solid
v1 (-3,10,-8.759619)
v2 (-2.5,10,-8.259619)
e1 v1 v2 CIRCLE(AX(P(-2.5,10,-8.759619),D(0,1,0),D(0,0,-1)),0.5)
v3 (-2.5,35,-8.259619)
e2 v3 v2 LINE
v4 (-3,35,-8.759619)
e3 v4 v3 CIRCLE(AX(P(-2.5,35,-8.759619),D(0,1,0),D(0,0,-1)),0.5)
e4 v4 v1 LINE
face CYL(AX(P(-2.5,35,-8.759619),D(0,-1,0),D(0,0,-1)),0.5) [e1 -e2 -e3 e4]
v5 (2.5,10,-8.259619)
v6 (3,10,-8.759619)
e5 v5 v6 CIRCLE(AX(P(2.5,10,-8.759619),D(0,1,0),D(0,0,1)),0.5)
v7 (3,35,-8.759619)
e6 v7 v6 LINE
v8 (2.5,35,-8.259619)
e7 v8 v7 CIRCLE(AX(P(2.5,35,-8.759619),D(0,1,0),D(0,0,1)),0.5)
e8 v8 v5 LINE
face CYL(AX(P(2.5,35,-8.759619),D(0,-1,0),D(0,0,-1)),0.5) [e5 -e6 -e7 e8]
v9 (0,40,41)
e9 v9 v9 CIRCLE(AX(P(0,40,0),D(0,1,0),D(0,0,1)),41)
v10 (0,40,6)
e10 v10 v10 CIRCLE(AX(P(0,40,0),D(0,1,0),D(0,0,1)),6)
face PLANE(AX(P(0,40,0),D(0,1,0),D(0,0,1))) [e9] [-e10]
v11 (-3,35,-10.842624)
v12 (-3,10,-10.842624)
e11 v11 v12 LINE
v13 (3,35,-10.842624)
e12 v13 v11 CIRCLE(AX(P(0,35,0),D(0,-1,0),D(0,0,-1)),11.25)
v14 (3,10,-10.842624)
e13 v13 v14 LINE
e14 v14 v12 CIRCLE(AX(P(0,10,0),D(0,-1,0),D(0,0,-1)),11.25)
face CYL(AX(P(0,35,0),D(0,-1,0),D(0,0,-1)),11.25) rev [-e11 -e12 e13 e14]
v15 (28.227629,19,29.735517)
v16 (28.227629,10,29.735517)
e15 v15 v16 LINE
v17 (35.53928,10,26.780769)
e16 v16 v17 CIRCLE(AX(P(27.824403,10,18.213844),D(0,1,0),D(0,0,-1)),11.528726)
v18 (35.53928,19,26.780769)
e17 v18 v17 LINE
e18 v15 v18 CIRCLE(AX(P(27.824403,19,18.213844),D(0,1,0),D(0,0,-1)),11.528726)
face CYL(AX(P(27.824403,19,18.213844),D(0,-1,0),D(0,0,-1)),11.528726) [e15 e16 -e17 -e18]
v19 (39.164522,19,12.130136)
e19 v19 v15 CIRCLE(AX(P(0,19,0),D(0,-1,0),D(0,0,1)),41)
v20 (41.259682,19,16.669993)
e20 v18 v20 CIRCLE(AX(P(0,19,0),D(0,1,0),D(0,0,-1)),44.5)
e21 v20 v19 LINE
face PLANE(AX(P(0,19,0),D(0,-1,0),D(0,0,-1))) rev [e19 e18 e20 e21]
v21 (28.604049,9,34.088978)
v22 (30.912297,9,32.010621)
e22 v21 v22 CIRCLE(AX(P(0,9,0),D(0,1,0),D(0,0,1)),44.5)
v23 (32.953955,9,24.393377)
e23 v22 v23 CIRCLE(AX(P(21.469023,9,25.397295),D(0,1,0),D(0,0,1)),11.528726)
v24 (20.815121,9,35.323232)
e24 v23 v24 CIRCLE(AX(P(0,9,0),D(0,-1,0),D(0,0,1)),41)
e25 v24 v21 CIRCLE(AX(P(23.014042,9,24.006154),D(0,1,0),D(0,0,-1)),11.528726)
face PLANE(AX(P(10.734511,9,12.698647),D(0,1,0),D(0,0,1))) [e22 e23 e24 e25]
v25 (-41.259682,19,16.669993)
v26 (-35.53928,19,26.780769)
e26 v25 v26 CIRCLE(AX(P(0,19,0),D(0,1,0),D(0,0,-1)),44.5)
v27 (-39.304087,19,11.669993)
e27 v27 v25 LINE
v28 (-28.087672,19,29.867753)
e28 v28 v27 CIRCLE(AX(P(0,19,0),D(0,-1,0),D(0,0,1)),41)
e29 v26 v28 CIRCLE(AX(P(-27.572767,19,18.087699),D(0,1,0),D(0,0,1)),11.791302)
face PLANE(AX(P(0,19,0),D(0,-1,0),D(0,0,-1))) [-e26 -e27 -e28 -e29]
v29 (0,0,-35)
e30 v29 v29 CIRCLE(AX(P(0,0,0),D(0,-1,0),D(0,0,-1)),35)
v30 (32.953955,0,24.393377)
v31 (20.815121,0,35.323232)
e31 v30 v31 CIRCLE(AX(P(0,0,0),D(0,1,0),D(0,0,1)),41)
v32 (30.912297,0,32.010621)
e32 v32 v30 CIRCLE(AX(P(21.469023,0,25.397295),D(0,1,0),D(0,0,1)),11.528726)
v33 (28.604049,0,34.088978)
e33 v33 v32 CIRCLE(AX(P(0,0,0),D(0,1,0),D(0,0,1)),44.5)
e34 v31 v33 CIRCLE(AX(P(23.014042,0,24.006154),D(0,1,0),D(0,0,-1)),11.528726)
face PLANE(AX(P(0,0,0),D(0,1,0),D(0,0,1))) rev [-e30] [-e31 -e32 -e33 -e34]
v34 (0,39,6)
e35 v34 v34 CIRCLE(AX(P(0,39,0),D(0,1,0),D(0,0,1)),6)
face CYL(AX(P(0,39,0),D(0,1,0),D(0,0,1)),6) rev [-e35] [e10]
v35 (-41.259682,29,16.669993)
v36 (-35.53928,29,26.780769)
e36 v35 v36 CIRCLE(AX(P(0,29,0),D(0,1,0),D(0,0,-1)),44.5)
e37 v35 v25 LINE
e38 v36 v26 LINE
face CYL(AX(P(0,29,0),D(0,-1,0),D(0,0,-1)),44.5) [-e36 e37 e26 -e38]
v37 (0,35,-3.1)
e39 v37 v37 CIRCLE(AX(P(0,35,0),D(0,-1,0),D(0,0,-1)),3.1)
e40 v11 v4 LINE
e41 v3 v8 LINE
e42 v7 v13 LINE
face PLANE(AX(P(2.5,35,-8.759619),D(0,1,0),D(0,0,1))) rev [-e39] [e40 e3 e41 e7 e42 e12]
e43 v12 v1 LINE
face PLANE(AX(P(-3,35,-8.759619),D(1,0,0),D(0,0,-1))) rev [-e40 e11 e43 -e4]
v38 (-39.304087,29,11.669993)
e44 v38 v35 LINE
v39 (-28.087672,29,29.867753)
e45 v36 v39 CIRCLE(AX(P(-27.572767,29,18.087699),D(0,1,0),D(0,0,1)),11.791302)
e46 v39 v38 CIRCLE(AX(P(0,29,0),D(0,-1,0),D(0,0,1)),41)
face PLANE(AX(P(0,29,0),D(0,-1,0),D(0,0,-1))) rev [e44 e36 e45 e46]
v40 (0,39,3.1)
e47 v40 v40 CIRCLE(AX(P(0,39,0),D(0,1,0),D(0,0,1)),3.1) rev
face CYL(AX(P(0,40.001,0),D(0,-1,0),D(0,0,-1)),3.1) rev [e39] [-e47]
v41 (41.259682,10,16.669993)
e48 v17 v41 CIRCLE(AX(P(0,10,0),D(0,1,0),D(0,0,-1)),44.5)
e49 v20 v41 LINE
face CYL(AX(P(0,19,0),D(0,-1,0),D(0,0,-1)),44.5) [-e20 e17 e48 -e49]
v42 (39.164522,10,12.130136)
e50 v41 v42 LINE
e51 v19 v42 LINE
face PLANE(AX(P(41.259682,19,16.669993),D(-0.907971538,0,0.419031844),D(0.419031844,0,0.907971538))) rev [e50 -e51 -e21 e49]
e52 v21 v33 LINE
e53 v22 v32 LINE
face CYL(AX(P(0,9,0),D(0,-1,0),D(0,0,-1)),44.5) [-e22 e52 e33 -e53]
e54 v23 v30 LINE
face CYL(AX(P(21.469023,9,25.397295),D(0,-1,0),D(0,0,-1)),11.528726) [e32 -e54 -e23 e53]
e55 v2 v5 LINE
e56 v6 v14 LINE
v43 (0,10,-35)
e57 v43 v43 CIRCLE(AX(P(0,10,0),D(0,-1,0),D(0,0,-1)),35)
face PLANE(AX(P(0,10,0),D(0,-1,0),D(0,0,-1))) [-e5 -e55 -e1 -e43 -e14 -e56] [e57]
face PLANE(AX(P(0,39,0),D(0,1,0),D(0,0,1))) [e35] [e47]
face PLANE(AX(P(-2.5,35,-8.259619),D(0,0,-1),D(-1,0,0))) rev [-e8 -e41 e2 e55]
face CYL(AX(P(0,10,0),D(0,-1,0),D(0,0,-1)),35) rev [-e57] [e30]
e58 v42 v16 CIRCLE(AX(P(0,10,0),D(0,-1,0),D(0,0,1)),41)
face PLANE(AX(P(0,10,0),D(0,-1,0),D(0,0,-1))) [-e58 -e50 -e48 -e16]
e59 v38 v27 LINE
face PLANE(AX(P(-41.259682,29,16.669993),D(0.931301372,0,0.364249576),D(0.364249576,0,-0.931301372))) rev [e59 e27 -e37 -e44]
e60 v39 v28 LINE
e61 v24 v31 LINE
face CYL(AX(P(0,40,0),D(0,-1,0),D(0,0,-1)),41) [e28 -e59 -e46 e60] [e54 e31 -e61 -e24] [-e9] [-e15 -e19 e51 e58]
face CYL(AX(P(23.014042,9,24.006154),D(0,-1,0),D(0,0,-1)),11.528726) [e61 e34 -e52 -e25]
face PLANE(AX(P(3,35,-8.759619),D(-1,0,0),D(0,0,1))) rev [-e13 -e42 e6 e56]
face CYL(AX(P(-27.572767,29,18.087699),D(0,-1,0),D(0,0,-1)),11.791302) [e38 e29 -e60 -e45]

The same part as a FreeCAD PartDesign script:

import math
import FreeCAD as App
import Part
import Sketcher

doc = App.newDocument("Part")
body = doc.addObject("PartDesign::Body", "Body")

# Sketch on XZ plane
sketch1 = body.newObject("Sketcher::SketchObject", "Sketch")
sketch1.AttachmentSupport = (doc.getObject("XZ_Plane"), [""])
sketch1.MapMode = "FlatFace"
sketch1.addGeometry(Part.Circle(App.Vector(0, 0, 0), App.Vector(0, 0, 1), 41), False)
sketch1.addConstraint(Sketcher.Constraint("Coincident", 0, 3, -1, 1))
sketch1.addConstraint(Sketcher.Constraint("Diameter", 0, 82.0))
pad1 = body.newObject("PartDesign::Pad", "Pad")
pad1.Profile = sketch1
pad1.Length = 40
pad1.Reversed = True

# Sketch on XZ plane
sketch2 = body.newObject("Sketcher::SketchObject", "Sketch001")
sketch2.AttachmentSupport = (doc.getObject("XZ_Plane"), [""])
sketch2.MapMode = "FlatFace"
sketch2.addGeometry(Part.ArcOfCircle(Part.Circle(App.Vector(0, 0, 0), App.Vector(0, 0, 1), 44.5), math.radians(46), math.radians(50)), False)
sketch2.addGeometry(Part.ArcOfCircle(Part.Circle(App.Vector(21.5, 25.4, 0), App.Vector(0, 0, 1), 11.5), math.radians(-5), math.radians(35)), False)
sketch2.addGeometry(Part.ArcOfCircle(Part.Circle(App.Vector(0, 0, 0), App.Vector(0, 0, 1), 41), math.radians(37), math.radians(59)), False)
sketch2.addGeometry(Part.ArcOfCircle(Part.Circle(App.Vector(23, 24, 0), App.Vector(0, 0, 1), 11.5), math.radians(61), math.radians(101)), False)
sketch2.addConstraint(Sketcher.Constraint("Coincident", 0, 1, 1, 2))
sketch2.addConstraint(Sketcher.Constraint("Coincident", 1, 1, 2, 1))
sketch2.addConstraint(Sketcher.Constraint("Coincident", 2, 2, 3, 2))
sketch2.addConstraint(Sketcher.Constraint("Coincident", 3, 1, 0, 2))
sketch2.addConstraint(Sketcher.Constraint("Coincident", 0, 3, -1, 1))
sketch2.addConstraint(Sketcher.Constraint("Coincident", 2, 3, -1, 1))
sketch2.addConstraint(Sketcher.Constraint("Equal", 1, 3))
sketch2.addConstraint(Sketcher.Constraint("Radius", 2, 41.0))
sketch2.addConstraint(Sketcher.Constraint("Radius", 0, 44.499999))
sketch2.addConstraint(Sketcher.Constraint("Radius", 1, 11.528726))
sketch2.addConstraint(Sketcher.Constraint("DistanceX", 2, 2, 1, 3, 0.653902))
sketch2.addConstraint(Sketcher.Constraint("DistanceY", 1, 1, 3, 1, 9.695601))
sketch2.addConstraint(Sketcher.Constraint("DistanceX", -1, 1, 3, 3, 23.014042))
sketch2.addConstraint(Sketcher.Constraint("DistanceY", -1, 1, 0, 1, 32.010621))
pad2 = body.newObject("PartDesign::Pad", "Pad001")
pad2.Profile = sketch2
pad2.Length = 9
pad2.Reversed = True

# Sketch on XZ plane
sketch3 = body.newObject("Sketcher::SketchObject", "Sketch002")
sketch3.AttachmentSupport = (doc.getObject("XZ_Plane"), [""])
sketch3.MapMode = "FlatFace"
sketch3.AttachmentOffset = App.Placement(App.Vector(0, 0, -10), App.Rotation())
sketch3.addGeometry(Part.LineSegment(App.Vector(41, 17, 0), App.Vector(39, 12, 0)), False)
sketch3.addGeometry(Part.ArcOfCircle(Part.Circle(App.Vector(0, 0, 0), App.Vector(0, 0, 1), 41), math.radians(17), math.radians(46)), False)
sketch3.addGeometry(Part.ArcOfCircle(Part.Circle(App.Vector(28, 18, 0), App.Vector(0, 0, 1), 12), math.radians(48), math.radians(88)), False)
sketch3.addGeometry(Part.ArcOfCircle(Part.Circle(App.Vector(0, 0, 0), App.Vector(0, 0, 1), 44), math.radians(22), math.radians(37)), False)
sketch3.addConstraint(Sketcher.Constraint("Coincident", 0, 2, 1, 1))
sketch3.addConstraint(Sketcher.Constraint("Coincident", 1, 2, 2, 2))
sketch3.addConstraint(Sketcher.Constraint("Coincident", 2, 1, 3, 2))
sketch3.addConstraint(Sketcher.Constraint("Coincident", 3, 1, 0, 1))
sketch3.addConstraint(Sketcher.Constraint("Coincident", 1, 3, -1, 1))
sketch3.addConstraint(Sketcher.Constraint("Coincident", 3, 3, -1, 1))
sketch3.addConstraint(Sketcher.Constraint("Radius", 1, 41.0))
sketch3.addConstraint(Sketcher.Constraint("Radius", 3, 44.5))
sketch3.addConstraint(Sketcher.Constraint("Distance", 0, 5.0))
sketch3.addConstraint(Sketcher.Constraint("Radius", 2, 11.528726))
sketch3.addConstraint(Sketcher.Constraint("DistanceX", 2, 1, 3, 1, 5.720401))
sketch3.addConstraint(Sketcher.Constraint("DistanceX", -1, 1, 1, 2, 28.227629))
sketch3.addConstraint(Sketcher.Constraint("DistanceX", -1, 1, 2, 1, 35.53928))
pad3 = body.newObject("PartDesign::Pad", "Pad002")
pad3.Profile = sketch3
pad3.Length = 9
pad3.Reversed = True

# Sketch on XZ plane
sketch4 = body.newObject("Sketcher::SketchObject", "Sketch003")
sketch4.AttachmentSupport = (doc.getObject("XZ_Plane"), [""])
sketch4.MapMode = "FlatFace"
sketch4.AttachmentOffset = App.Placement(App.Vector(0, 0, -19), App.Rotation())
sketch4.addGeometry(Part.LineSegment(App.Vector(-39, 12, 0), App.Vector(-41, 17, 0)), False)
sketch4.addGeometry(Part.ArcOfCircle(Part.Circle(App.Vector(0, 0, 0), App.Vector(0, 0, 1), 44), math.radians(143), math.radians(158)), False)
sketch4.addGeometry(Part.ArcOfCircle(Part.Circle(App.Vector(-28, 18, 0), App.Vector(0, 0, 1), 12), math.radians(93), math.radians(133)), False)
sketch4.addGeometry(Part.ArcOfCircle(Part.Circle(App.Vector(0, 0, 0), App.Vector(0, 0, 1), 41), math.radians(133), math.radians(163)), False)
sketch4.addConstraint(Sketcher.Constraint("Coincident", 0, 2, 1, 2))
sketch4.addConstraint(Sketcher.Constraint("Coincident", 1, 1, 2, 2))
sketch4.addConstraint(Sketcher.Constraint("Coincident", 2, 1, 3, 1))
sketch4.addConstraint(Sketcher.Constraint("Coincident", 3, 2, 0, 1))
sketch4.addConstraint(Sketcher.Constraint("Coincident", 1, 3, -1, 1))
sketch4.addConstraint(Sketcher.Constraint("Coincident", 3, 3, -1, 1))
sketch4.addConstraint(Sketcher.Constraint("Radius", 3, 41.0))
sketch4.addConstraint(Sketcher.Constraint("Radius", 1, 44.5))
sketch4.addConstraint(Sketcher.Constraint("DistanceY", 3, 2, 0, 2, 5.0))
sketch4.addConstraint(Sketcher.Constraint("Radius", 2, 11.791302))
sketch4.addConstraint(Sketcher.Constraint("DistanceY", -1, 1, 2, 3, 18.087699))
sketch4.addConstraint(Sketcher.Constraint("DistanceX", 0, 2, 1, 1, 5.720401))
sketch4.addConstraint(Sketcher.Constraint("Distance", 0, 5.368831))
pad4 = body.newObject("PartDesign::Pad", "Pad003")
pad4.Profile = sketch4
pad4.Length = 10
pad4.Reversed = True

# Sketch on XZ plane
sketch5 = body.newObject("Sketcher::SketchObject", "Sketch004")
sketch5.AttachmentSupport = (doc.getObject("XZ_Plane"), [""])
sketch5.MapMode = "FlatFace"
sketch5.addGeometry(Part.Circle(App.Vector(0, 0, 0), App.Vector(0, 0, 1), 35), False)
sketch5.addConstraint(Sketcher.Constraint("Coincident", 0, 3, -1, 1))
sketch5.addConstraint(Sketcher.Constraint("Diameter", 0, 70.0))
pocket1 = body.newObject("PartDesign::Pocket", "Pocket")
pocket1.Profile = sketch5
pocket1.Length = 10

# Sketch on XZ plane
sketch6 = body.newObject("Sketcher::SketchObject", "Sketch005")
sketch6.AttachmentSupport = (doc.getObject("XZ_Plane"), [""])
sketch6.MapMode = "FlatFace"
sketch6.AttachmentOffset = App.Placement(App.Vector(0, 0, -10), App.Rotation())
sketch6.addGeometry(Part.LineSegment(App.Vector(-2.5, -8.26, 0), App.Vector(2.5, -8.26, 0)), False)
sketch6.addGeometry(Part.ArcOfCircle(Part.Circle(App.Vector(2.5, -8.76, 0), App.Vector(0, 0, 1), 0.5), math.radians(0), math.radians(90)), False)
sketch6.addGeometry(Part.LineSegment(App.Vector(3, -8.76, 0), App.Vector(3, -10.84, 0)), False)
sketch6.addGeometry(Part.ArcOfCircle(Part.Circle(App.Vector(0, 0, 0), App.Vector(0, 0, 1), 11.25), math.radians(-75), math.radians(255)), False)
sketch6.addGeometry(Part.LineSegment(App.Vector(-3, -10.84, 0), App.Vector(-3, -8.76, 0)), False)
sketch6.addGeometry(Part.ArcOfCircle(Part.Circle(App.Vector(-2.5, -8.76, 0), App.Vector(0, 0, 1), 0.5), math.radians(90), math.radians(180)), False)
sketch6.addConstraint(Sketcher.Constraint("Tangent", 0, 2, 1, 2))
sketch6.addConstraint(Sketcher.Constraint("Tangent", 1, 1, 2, 1))
sketch6.addConstraint(Sketcher.Constraint("Coincident", 2, 2, 3, 1))
sketch6.addConstraint(Sketcher.Constraint("Coincident", 3, 2, 4, 1))
sketch6.addConstraint(Sketcher.Constraint("Tangent", 4, 2, 5, 2))
sketch6.addConstraint(Sketcher.Constraint("Tangent", 5, 1, 0, 1))
sketch6.addConstraint(Sketcher.Constraint("Horizontal", 0))
sketch6.addConstraint(Sketcher.Constraint("Vertical", 2))
sketch6.addConstraint(Sketcher.Constraint("Vertical", 4))
sketch6.addConstraint(Sketcher.Constraint("Coincident", 3, 3, -1, 1))
sketch6.addConstraint(Sketcher.Constraint("Equal", 1, 5))
sketch6.addConstraint(Sketcher.Constraint("Horizontal", 2, 2, 3, 2))
sketch6.addConstraint(Sketcher.Constraint("Radius", 1, 0.5))
sketch6.addConstraint(Sketcher.Constraint("DistanceX", 0, 1, 0, 2, 5.0))
sketch6.addConstraint(Sketcher.Constraint("Radius", 3, 11.25))
sketch6.addConstraint(Sketcher.Constraint("DistanceY", 2, 2, 2, 1, 2.083005))
pocket2 = body.newObject("PartDesign::Pocket", "Pocket001")
pocket2.Profile = sketch6
pocket2.Length = 25

# Sketch on XZ plane
sketch7 = body.newObject("Sketcher::SketchObject", "Sketch006")
sketch7.AttachmentSupport = (doc.getObject("XZ_Plane"), [""])
sketch7.MapMode = "FlatFace"
sketch7.AttachmentOffset = App.Placement(App.Vector(0, 0, -35), App.Rotation())
sketch7.addGeometry(Part.Circle(App.Vector(0, 0, 0), App.Vector(0, 0, 1), 3.1), False)
sketch7.addConstraint(Sketcher.Constraint("Coincident", 0, 3, -1, 1))
sketch7.addConstraint(Sketcher.Constraint("Diameter", 0, 6.2))
pocket3 = body.newObject("PartDesign::Pocket", "Pocket002")
pocket3.Profile = sketch7
pocket3.Type = "UpToFirst"

# Sketch on XZ plane
sketch8 = body.newObject("Sketcher::SketchObject", "Sketch007")
sketch8.AttachmentSupport = (doc.getObject("XZ_Plane"), [""])
sketch8.MapMode = "FlatFace"
sketch8.AttachmentOffset = App.Placement(App.Vector(0, 0, -40), App.Rotation())
sketch8.addGeometry(Part.Circle(App.Vector(0, 0, 0), App.Vector(0, 0, 1), 6), False)
sketch8.addConstraint(Sketcher.Constraint("Coincident", 0, 3, -1, 1))
sketch8.addConstraint(Sketcher.Constraint("Diameter", 0, 12.0))
pocket4 = body.newObject("PartDesign::Pocket", "Pocket003")
pocket4.Profile = sketch8
pocket4.Length = 1
pocket4.Reversed = True

doc.recompute()
